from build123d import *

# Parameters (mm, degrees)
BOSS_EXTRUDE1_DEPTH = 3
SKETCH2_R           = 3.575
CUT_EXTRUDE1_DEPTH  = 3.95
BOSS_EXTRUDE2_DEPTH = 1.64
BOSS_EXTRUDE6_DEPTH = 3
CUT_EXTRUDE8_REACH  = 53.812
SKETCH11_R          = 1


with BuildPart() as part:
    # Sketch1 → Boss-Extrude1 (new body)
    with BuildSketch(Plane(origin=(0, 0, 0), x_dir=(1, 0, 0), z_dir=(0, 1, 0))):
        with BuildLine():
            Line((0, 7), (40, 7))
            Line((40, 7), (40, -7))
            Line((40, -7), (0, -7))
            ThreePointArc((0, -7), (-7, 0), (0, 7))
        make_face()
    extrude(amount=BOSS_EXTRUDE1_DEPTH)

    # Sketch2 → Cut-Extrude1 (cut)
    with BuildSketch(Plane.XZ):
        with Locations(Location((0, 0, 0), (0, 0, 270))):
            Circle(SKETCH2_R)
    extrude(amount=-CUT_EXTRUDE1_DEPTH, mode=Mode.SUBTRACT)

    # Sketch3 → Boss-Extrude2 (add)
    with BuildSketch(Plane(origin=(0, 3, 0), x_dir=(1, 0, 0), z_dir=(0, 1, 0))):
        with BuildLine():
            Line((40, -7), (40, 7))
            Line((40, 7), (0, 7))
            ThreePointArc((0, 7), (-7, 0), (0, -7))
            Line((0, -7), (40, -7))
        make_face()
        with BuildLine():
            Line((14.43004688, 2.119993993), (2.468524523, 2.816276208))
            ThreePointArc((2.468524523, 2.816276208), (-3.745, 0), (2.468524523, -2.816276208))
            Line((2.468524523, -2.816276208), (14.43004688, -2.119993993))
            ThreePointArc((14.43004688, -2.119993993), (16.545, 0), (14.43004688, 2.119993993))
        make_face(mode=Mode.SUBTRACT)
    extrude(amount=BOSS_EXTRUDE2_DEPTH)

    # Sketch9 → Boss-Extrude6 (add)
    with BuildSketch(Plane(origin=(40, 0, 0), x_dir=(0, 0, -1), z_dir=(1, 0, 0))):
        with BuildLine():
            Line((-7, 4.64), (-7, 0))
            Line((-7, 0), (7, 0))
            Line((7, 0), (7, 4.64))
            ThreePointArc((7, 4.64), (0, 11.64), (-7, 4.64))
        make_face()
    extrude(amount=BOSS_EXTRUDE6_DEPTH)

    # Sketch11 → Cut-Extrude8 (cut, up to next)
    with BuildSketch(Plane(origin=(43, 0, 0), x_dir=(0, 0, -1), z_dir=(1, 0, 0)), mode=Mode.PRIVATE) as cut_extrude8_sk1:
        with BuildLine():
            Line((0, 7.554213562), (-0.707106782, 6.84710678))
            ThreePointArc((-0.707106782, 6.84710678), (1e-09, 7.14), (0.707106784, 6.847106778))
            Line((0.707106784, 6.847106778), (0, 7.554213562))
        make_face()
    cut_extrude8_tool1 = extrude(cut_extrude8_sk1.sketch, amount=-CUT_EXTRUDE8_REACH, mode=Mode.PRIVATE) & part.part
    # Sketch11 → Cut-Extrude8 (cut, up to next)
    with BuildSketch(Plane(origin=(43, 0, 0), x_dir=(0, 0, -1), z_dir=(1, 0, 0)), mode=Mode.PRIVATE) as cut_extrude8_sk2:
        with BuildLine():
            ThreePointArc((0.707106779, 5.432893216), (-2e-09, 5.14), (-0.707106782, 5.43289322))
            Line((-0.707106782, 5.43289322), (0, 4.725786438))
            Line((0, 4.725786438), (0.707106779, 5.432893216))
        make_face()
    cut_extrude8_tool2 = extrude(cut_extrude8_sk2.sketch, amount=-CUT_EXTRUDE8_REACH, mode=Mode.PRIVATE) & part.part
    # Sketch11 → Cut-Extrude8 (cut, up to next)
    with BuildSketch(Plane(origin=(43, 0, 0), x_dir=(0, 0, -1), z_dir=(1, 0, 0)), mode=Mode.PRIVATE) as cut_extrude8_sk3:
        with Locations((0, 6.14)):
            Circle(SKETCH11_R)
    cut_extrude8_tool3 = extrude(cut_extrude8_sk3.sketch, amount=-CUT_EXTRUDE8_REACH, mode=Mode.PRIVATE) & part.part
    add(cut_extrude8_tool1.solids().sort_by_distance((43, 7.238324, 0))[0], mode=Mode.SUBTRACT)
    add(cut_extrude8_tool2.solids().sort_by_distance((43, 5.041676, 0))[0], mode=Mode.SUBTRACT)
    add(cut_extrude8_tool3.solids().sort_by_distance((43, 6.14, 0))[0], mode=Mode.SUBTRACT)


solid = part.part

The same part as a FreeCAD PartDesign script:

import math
import FreeCAD as App
import Part
import Sketcher
from FreeCAD import Vector

doc = App.newDocument("Part")
body = doc.addObject("PartDesign::Body", "Body")

# Sketch on XZ plane
sketch1 = doc.addObject("Sketcher::SketchObject", "Sketch")
body.addObject(sketch1)
sketch1.AttachmentSupport = (doc.XZ_Plane, [""])
sketch1.MapMode = "FlatFace"
sketch1.addGeometry([
    Part.LineSegment(Vector(40, -7, 0), Vector(0, -7, 0)),
    Part.ArcOfCircle(Part.Circle(Vector(0, 0, 0), Vector(0, 0, 1), 7), math.radians(90), math.radians(270)),
    Part.LineSegment(Vector(0, 7, 0), Vector(40, 7, 0)),
    Part.LineSegment(Vector(40, 7, 0), Vector(40, -7, 0)),
], False)
sketch1.addConstraint([
    Sketcher.Constraint("Tangent", 0, 2, 1, 2),
    Sketcher.Constraint("Tangent", 1, 1, 2, 1),
    Sketcher.Constraint("Coincident", 2, 2, 3, 1),
    Sketcher.Constraint("Coincident", 3, 2, 0, 1),
    Sketcher.Constraint("Horizontal", 0),
    Sketcher.Constraint("Horizontal", 2),
    Sketcher.Constraint("Vertical", 3),
    Sketcher.Constraint("Coincident", 1, 3, -1, 1),
    Sketcher.Constraint("Radius", 1, 7.0),
    Sketcher.Constraint("DistanceX", 0, 2, 0, 1, 40.0),
])
pad1 = doc.addObject("PartDesign::Pad", "Pad")
body.addObject(pad1)
pad1.Profile = sketch1
pad1.Length = 3
pad1.Reversed = True

# Sketch on XZ plane
sketch2 = doc.addObject("Sketcher::SketchObject", "Sketch001")
body.addObject(sketch2)
sketch2.AttachmentSupport = (doc.XZ_Plane, [""])
sketch2.MapMode = "FlatFace"
sketch2.addGeometry(Part.Circle(Vector(0, 0, 0), Vector(0, 0, 1), 3.575), False)
sketch2.addConstraint([
    Sketcher.Constraint("Coincident", 0, 3, -1, 1),
    Sketcher.Constraint("Diameter", 0, 7.15),
])
pocket1 = doc.addObject("PartDesign::Pocket", "Pocket")
body.addObject(pocket1)
pocket1.Profile = sketch2
pocket1.Length = 3.95

# Sketch on XZ plane
sketch3 = doc.addObject("Sketcher::SketchObject", "Sketch002")
body.addObject(sketch3)
sketch3.AttachmentSupport = (doc.XZ_Plane, [""])
sketch3.MapMode = "FlatFace"
sketch3.AttachmentOffset = App.Placement(Vector(0, 0, -3), App.Rotation())
sketch3.addGeometry([
    Part.LineSegment(Vector(40, 7, 0), Vector(40, -7, 0)),  # 0
    Part.LineSegment(Vector(40, -7, 0), Vector(0, -7, 0)),  # 1
    Part.ArcOfCircle(Part.Circle(Vector(0, 0, 0), Vector(0, 0, 1), 7), math.radians(90), math.radians(270)),  # 2
    Part.LineSegment(Vector(0, 7, 0), Vector(40, 7, 0)),  # 3
    Part.LineSegment(Vector(2.468525, -2.816276, 0), Vector(14.430047, -2.119994, 0)),  # 4
    Part.ArcOfCircle(Part.Circle(Vector(14.425, 0, 0), Vector(0, 0, 1), 2.12), math.radians(-89.863601), math.radians(89.863601)),  # 5
    Part.LineSegment(Vector(14.430047, 2.119994, 0), Vector(2.468525, 2.816276, 0)),  # 6
    Part.ArcOfCircle(Part.Circle(Vector(0, 0, 0), Vector(0, 0, 1), 3.745), math.radians(48.764763), math.radians(311.235237)),  # 7
], False)
sketch3.addConstraint([
    Sketcher.Constraint("Coincident", 0, 2, 1, 1),
    Sketcher.Constraint("Tangent", 1, 2, 2, 2),
    Sketcher.Constraint("Tangent", 2, 1, 3, 1),
    Sketcher.Constraint("Coincident", 3, 2, 0, 1),
    Sketcher.Constraint("Coincident", 4, 2, 5, 1),
    Sketcher.Constraint("Coincident", 5, 2, 6, 1),
    Sketcher.Constraint("Coincident", 6, 2, 7, 1),
    Sketcher.Constraint("Coincident", 7, 2, 4, 1),
    Sketcher.Constraint("Vertical", 0),
    Sketcher.Constraint("Horizontal", 1),
    Sketcher.Constraint("Horizontal", 3),
    Sketcher.Constraint("Coincident", 2, 3, -1, 1),
    Sketcher.Constraint("Coincident", 7, 3, -1, 1),
    Sketcher.Constraint("Symmetric", 4, 2, 5, 2, -1),
    Sketcher.Constraint("Vertical", 6, 2, 7, 2),
    Sketcher.Constraint("Radius", 2, 7.0),
    Sketcher.Constraint("DistanceX", 1, 2, 1, 1, 40.0),
    Sketcher.Constraint("Radius", 5, 2.12),
    Sketcher.Constraint("Radius", 7, 3.745),
    Sketcher.Constraint("DistanceX", -1, 1, 5, 3, 14.425),
    Sketcher.Constraint("Distance", 4, 11.981771),
    Sketcher.Constraint("DistanceX", -1, 1, 4, 2, 14.430047),
])
pad2 = doc.addObject("PartDesign::Pad", "Pad001")
body.addObject(pad2)
pad2.Profile = sketch3
pad2.Length = 1.64
pad2.Reversed = True

# Sketch on YZ plane
sketch4 = doc.addObject("Sketcher::SketchObject", "Sketch003")
body.addObject(sketch4)
sketch4.AttachmentSupport = (doc.YZ_Plane, [""])
sketch4.MapMode = "FlatFace"
sketch4.AttachmentOffset = App.Placement(Vector(0, 0, 40), App.Rotation())
sketch4.addGeometry([
    Part.LineSegment(Vector(4.64, 7, 0), Vector(0, 7, 0)),
    Part.LineSegment(Vector(0, 7, 0), Vector(0, -7, 0)),
    Part.LineSegment(Vector(0, -7, 0), Vector(4.64, -7, 0)),
    Part.ArcOfCircle(Part.Circle(Vector(4.64, 0, 0), Vector(0, 0, 1), 7), math.radians(-90), math.radians(90)),
], False)
sketch4.addConstraint([
    Sketcher.Constraint("Coincident", 0, 2, 1, 1),
    Sketcher.Constraint("Coincident", 1, 2, 2, 1),
    Sketcher.Constraint("Tangent", 2, 2, 3, 1),
    Sketcher.Constraint("Tangent", 3, 2, 0, 1),
    Sketcher.Constraint("Horizontal", 0),
    Sketcher.Constraint("Vertical", 1),
    Sketcher.Constraint("Horizontal", 2),
    Sketcher.Constraint("Symmetric", 0, 2, 1, 2, -1, 1),
    Sketcher.Constraint("Radius", 3, 7.0),
    Sketcher.Constraint("DistanceX", 0, 2, 0, 1, 4.64),
])
pad3 = doc.addObject("PartDesign::Pad", "Pad002")
body.addObject(pad3)
pad3.Profile = sketch4
pad3.Length = 3

# Sketch on YZ plane
sketch5 = doc.addObject("Sketcher::SketchObject", "Sketch004")
body.addObject(sketch5)
sketch5.AttachmentSupport = (doc.YZ_Plane, [""])
sketch5.MapMode = "FlatFace"
sketch5.AttachmentOffset = App.Placement(Vector(0, 0, 43), App.Rotation())
sketch5.addGeometry([
    Part.LineSegment(Vector(7.554214, 0, 0), Vector(6.847107, 0.707107, 0)),
    Part.ArcOfCircle(Part.Circle(Vector(6.14, 0, 0), Vector(0, 0, 1), 1), math.radians(-45), math.radians(45)),
    Part.LineSegment(Vector(6.847107, -0.707107, 0), Vector(7.554214, 0, 0)),
], False)
sketch5.addConstraint([
    Sketcher.Constraint("Tangent", 0, 2, 1, 2),
    Sketcher.Constraint("Tangent", 1, 1, 2, 1),
    Sketcher.Constraint("Coincident", 2, 2, 0, 1),
    Sketcher.Constraint("Symmetric", 0, 2, 1, 1, -1),
    Sketcher.Constraint("Perpendicular", 0, 2),
    Sketcher.Constraint("Radius", 1, 1.0),
    Sketcher.Constraint("DistanceX", -1, 1, 1, 3, 6.14),
])
pocket2 = doc.addObject("PartDesign::Pocket", "Pocket001")
body.addObject(pocket2)
pocket2.Profile = sketch5
pocket2.Type = "UpToFirst"

# Sketch on YZ plane
sketch6 = doc.addObject("Sketcher::SketchObject", "Sketch005")
body.addObject(sketch6)
sketch6.AttachmentSupport = (doc.YZ_Plane, [""])
sketch6.MapMode = "FlatFace"
sketch6.AttachmentOffset = App.Placement(Vector(0, 0, 43), App.Rotation())
sketch6.addGeometry([
    Part.ArcOfCircle(Part.Circle(Vector(6.14, 0, 0), Vector(0, 0, 1), 1), math.radians(135), math.radians(225)),
    Part.LineSegment(Vector(5.432893, 0.707107, 0), Vector(4.725786, 0, 0)),
    Part.LineSegment(Vector(4.725786, 0, 0), Vector(5.432893, -0.707107, 0)),
], False)
sketch6.addConstraint([
    Sketcher.Constraint("Tangent", 0, 1, 1, 1),
    Sketcher.Constraint("Coincident", 1, 2, 2, 1),
    Sketcher.Constraint("Tangent", 2, 2, 0, 2),
    Sketcher.Constraint("Symmetric", 0, 1, 2, 2, -1),
    Sketcher.Constraint("Perpendicular", 1, 2),
    Sketcher.Constraint("Radius", 0, 1.0),
    Sketcher.Constraint("DistanceX", -1, 1, 0, 3, 6.14),
])
pocket3 = doc.addObject("PartDesign::Pocket", "Pocket002")
body.addObject(pocket3)
pocket3.Profile = sketch6
pocket3.Type = "UpToFirst"

# Sketch on YZ plane
sketch7 = doc.addObject("Sketcher::SketchObject", "Sketch006")
body.addObject(sketch7)
sketch7.AttachmentSupport = (doc.YZ_Plane, [""])
sketch7.MapMode = "FlatFace"
sketch7.AttachmentOffset = App.Placement(Vector(0, 0, 43), App.Rotation())
sketch7.addGeometry(Part.Circle(Vector(6.14, 0, 0), Vector(0, 0, 1), 1), False)
sketch7.addConstraint([
    Sketcher.Constraint("PointOnObject", 0, 3, -1),
    Sketcher.Constraint("Diameter", 0, 2.0),
    Sketcher.Constraint("DistanceX", -1, 1, 0, 3, 6.14),
])
pocket4 = doc.addObject("PartDesign::Pocket", "Pocket003")
body.addObject(pocket4)
pocket4.Profile = sketch7
pocket4.Type = "UpToFirst"

doc.recompute()
